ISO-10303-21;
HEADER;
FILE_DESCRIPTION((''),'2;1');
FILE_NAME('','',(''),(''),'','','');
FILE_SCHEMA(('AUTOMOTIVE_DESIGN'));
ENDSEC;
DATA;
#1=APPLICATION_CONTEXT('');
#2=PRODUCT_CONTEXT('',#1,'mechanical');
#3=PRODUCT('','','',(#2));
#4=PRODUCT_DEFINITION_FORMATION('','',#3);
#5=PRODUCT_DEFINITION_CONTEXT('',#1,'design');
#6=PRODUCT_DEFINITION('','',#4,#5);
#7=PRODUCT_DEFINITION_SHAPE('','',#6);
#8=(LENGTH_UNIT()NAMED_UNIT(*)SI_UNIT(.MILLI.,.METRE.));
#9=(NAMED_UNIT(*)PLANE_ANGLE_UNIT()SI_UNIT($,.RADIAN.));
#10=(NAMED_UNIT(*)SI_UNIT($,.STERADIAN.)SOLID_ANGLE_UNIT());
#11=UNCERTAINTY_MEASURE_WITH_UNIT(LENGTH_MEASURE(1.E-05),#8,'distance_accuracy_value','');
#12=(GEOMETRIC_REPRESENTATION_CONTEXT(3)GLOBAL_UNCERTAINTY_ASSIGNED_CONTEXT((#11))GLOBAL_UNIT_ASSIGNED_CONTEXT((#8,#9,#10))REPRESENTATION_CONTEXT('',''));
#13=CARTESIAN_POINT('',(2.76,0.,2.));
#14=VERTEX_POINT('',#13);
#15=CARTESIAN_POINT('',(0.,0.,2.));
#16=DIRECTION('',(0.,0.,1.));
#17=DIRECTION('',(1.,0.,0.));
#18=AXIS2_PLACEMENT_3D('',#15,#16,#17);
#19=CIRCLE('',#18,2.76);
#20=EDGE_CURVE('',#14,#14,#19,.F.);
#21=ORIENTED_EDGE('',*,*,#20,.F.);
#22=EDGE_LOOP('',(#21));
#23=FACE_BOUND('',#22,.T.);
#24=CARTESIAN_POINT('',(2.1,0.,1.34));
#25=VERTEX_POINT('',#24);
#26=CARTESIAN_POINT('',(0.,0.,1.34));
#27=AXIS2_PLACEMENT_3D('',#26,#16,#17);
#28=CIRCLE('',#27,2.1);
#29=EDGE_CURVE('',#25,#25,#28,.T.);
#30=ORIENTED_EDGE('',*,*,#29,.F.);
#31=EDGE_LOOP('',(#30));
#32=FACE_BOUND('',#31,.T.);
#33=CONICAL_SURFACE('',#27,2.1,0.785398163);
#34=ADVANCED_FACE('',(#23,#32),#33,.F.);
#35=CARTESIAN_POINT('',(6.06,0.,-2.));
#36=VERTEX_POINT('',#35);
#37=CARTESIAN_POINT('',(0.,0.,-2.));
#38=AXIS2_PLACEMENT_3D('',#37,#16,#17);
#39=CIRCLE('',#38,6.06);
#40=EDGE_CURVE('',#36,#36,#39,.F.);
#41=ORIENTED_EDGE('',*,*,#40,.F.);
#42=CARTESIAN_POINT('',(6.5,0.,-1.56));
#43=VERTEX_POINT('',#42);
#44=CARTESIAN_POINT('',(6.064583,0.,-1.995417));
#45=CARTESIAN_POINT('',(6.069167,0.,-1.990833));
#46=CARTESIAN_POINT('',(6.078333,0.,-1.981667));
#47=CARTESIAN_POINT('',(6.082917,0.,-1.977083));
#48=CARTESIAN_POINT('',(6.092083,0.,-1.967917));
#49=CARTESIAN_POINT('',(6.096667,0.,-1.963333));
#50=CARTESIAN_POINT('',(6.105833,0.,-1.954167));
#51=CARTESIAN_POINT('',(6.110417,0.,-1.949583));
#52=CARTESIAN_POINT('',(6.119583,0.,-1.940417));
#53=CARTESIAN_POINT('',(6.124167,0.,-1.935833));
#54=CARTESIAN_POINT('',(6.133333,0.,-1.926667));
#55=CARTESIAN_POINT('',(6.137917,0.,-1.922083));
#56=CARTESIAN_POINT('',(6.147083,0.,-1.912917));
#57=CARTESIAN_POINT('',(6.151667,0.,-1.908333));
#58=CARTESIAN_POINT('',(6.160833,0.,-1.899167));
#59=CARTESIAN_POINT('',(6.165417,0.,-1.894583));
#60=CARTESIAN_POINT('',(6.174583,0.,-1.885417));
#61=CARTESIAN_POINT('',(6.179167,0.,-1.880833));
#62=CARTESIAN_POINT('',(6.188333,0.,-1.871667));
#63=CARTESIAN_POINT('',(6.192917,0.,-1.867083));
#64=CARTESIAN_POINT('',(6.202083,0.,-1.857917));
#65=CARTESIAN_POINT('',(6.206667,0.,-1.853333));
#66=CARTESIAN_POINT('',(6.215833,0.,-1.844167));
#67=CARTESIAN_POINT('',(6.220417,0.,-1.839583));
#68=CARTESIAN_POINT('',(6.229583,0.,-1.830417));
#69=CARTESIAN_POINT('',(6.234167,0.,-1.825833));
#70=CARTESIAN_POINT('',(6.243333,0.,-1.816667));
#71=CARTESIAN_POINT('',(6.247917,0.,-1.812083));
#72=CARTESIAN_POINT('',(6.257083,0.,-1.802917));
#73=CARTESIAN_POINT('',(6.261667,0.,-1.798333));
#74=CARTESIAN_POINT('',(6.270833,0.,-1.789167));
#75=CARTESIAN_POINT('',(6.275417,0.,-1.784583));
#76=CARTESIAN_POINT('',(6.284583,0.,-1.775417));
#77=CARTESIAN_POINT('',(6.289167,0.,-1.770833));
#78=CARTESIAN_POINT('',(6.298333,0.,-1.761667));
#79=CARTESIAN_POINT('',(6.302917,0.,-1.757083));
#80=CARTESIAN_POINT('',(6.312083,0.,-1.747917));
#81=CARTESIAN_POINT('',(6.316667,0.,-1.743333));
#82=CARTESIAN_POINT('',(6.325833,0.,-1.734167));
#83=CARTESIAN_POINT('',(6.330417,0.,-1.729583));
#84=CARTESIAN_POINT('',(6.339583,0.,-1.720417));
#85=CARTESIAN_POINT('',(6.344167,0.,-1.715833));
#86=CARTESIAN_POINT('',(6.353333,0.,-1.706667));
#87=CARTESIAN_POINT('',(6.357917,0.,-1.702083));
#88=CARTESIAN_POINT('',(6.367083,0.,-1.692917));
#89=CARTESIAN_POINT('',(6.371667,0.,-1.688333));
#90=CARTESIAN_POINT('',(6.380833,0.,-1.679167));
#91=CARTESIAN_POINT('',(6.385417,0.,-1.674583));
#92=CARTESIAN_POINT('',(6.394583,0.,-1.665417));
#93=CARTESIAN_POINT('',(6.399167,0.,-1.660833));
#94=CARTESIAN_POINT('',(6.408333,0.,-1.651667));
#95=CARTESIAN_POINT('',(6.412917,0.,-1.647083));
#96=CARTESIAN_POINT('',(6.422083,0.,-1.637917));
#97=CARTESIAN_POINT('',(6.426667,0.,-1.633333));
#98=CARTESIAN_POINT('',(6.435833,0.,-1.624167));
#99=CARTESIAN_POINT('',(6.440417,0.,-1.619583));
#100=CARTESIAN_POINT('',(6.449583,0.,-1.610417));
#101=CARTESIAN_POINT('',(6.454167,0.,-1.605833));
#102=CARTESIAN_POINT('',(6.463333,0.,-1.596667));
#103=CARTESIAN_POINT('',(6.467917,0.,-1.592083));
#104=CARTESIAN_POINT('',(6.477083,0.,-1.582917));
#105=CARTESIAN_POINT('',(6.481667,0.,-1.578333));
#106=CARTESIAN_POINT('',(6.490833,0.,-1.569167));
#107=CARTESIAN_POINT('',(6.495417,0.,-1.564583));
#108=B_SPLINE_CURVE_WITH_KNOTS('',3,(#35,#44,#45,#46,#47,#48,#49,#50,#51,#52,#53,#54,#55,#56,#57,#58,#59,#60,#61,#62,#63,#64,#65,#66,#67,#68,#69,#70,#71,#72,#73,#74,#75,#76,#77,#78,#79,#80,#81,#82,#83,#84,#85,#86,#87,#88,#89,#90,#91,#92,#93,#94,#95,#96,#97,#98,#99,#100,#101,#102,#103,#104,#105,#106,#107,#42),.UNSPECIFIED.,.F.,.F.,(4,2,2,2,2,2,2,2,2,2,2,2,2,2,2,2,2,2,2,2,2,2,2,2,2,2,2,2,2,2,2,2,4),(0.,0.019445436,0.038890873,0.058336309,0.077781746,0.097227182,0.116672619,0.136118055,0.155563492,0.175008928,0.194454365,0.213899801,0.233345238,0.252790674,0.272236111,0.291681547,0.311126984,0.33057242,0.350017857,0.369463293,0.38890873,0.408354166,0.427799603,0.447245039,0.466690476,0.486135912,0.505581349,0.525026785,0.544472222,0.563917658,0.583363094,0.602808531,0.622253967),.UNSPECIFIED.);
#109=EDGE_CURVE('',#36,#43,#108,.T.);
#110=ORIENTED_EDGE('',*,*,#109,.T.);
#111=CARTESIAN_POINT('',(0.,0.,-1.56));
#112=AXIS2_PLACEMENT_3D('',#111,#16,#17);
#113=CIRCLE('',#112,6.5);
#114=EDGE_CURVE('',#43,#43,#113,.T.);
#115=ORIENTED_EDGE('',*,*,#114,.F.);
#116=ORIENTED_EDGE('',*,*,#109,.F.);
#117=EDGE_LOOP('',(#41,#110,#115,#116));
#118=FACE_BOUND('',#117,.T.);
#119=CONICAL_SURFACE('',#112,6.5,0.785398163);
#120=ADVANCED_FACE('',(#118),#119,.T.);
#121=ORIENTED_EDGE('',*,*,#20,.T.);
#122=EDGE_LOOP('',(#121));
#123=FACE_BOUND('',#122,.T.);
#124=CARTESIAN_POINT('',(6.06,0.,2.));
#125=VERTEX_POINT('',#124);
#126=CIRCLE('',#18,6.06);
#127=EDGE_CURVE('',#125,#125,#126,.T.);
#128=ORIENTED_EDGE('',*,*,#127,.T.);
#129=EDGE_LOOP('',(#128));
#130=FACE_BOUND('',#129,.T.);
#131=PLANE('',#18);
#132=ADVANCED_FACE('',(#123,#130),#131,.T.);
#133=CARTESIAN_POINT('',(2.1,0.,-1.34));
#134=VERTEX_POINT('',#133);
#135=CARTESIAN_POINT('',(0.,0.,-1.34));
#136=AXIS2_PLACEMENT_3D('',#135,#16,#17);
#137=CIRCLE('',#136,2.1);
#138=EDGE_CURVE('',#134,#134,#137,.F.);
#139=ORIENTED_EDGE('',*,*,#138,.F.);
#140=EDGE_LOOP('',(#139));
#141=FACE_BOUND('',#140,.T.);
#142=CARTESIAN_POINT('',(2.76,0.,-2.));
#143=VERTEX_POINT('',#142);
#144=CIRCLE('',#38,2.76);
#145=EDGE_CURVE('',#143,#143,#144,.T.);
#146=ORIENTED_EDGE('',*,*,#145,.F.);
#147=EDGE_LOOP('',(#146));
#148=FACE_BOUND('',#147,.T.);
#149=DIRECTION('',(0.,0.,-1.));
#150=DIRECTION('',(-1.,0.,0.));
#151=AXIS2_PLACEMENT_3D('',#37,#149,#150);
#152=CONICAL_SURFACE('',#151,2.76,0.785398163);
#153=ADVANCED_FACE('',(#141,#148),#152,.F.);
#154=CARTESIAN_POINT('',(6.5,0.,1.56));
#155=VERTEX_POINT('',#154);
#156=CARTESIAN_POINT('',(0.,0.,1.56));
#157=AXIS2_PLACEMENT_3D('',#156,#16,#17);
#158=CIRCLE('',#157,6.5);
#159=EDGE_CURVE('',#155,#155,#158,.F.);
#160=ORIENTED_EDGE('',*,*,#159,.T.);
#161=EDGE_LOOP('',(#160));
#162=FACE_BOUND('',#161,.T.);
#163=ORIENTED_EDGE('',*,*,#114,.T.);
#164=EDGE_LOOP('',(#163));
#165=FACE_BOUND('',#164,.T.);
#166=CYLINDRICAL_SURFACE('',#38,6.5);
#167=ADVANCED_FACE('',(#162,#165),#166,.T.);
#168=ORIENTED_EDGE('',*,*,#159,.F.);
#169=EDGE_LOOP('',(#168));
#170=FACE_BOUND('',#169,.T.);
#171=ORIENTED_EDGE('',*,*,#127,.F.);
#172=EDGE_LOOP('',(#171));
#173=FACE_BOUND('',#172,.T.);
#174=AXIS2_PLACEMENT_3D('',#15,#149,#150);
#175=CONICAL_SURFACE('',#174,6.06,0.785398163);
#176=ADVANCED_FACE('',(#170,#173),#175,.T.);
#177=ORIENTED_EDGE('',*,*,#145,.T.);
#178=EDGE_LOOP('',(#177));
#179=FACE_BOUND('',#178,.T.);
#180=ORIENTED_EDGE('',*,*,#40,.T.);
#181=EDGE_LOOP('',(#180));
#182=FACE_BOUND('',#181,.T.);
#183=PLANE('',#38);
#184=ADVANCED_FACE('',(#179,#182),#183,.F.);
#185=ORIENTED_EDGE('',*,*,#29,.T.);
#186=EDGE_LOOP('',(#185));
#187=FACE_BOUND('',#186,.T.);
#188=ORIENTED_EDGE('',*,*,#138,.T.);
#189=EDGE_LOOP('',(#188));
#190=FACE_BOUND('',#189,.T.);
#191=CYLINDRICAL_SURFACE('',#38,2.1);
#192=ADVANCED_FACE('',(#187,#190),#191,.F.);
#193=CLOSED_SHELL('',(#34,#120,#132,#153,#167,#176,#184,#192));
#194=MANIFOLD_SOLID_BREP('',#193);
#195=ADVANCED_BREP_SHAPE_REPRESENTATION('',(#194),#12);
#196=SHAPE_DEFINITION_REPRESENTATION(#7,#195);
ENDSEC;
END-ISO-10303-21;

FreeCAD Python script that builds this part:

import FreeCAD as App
import Part
import Sketcher
from FreeCAD import Vector


def edges_at(feature, points):
    """Names of the edges that pass closest to the given points."""
    edges = feature.Shape.Edges
    near = lambda p: min(range(len(edges)), key=lambda i: edges[i].distToShape(Part.Vertex(*p))[0])
    return sorted({f"Edge{near(p) + 1}" for p in points})

doc = App.newDocument("Part")
params = doc.addObject("Spreadsheet::Sheet", "Params")
for row, (alias, value) in enumerate([
    ("sketch1_diameter", "13 mm"),
    ("sketch1_diameter2", "4.2 mm"),
    ("pad1_length", "2 mm"),
    ("pad1_length2", "2 mm"),
    ("chamfer_size", "0.44 mm"),
    ("chamfer2_size", "0.66 mm"),
], start=1):
    params.set(f"A{row}", alias)
    params.set(f"B{row}", "=" + value)
    params.setAlias(f"B{row}", alias)

body = doc.addObject("PartDesign::Body", "Body")

# Sketch on XY plane
sketch1 = body.newObject("Sketcher::SketchObject", "Sketch")
sketch1.AttachmentSupport = (doc.getObject("XY_Plane"), [""])
sketch1.MapMode = "FlatFace"
sketch1.addGeometry([
    Part.Circle(Vector(0, 0, 0), Vector(0, 0, 1), 6.5),
    Part.Circle(Vector(0, 0, 0), Vector(0, 0, 1), 2.1),
], False)
sketch1.addConstraint([
    Sketcher.Constraint("Coincident", 0, 3, -1, 1),
    Sketcher.Constraint("Coincident", 1, 3, -1, 1),
    Sketcher.Constraint("Diameter", 0, 13.0),
    Sketcher.Constraint("Diameter", 1, 4.2),
])
sketch1.setExpression("Constraints[2]", "Params.sketch1_diameter")
sketch1.setExpression("Constraints[3]", "Params.sketch1_diameter2")
pad1 = body.newObject("PartDesign::Pad", "Pad")
pad1.Profile = sketch1
pad1.Type = "TwoLengths"
pad1.setExpression("Length", "Params.pad1_length")
pad1.setExpression("Length2", "Params.pad1_length2")
doc.recompute()

chamfer = body.newObject("PartDesign::Chamfer", "Chamfer")
chamfer.Base = (pad1, edges_at(pad1, [(-6.5, 0, -2), (-6.5, 0, 2)]))
chamfer.setExpression("Size", "Params.chamfer_size")
doc.recompute()

chamfer2 = body.newObject("PartDesign::Chamfer", "Chamfer001")
chamfer2.Base = (chamfer, edges_at(chamfer, [(-2.1, 0, -2), (-2.1, 0, 2)]))
chamfer2.setExpression("Size", "Params.chamfer2_size")

doc.recompute()
